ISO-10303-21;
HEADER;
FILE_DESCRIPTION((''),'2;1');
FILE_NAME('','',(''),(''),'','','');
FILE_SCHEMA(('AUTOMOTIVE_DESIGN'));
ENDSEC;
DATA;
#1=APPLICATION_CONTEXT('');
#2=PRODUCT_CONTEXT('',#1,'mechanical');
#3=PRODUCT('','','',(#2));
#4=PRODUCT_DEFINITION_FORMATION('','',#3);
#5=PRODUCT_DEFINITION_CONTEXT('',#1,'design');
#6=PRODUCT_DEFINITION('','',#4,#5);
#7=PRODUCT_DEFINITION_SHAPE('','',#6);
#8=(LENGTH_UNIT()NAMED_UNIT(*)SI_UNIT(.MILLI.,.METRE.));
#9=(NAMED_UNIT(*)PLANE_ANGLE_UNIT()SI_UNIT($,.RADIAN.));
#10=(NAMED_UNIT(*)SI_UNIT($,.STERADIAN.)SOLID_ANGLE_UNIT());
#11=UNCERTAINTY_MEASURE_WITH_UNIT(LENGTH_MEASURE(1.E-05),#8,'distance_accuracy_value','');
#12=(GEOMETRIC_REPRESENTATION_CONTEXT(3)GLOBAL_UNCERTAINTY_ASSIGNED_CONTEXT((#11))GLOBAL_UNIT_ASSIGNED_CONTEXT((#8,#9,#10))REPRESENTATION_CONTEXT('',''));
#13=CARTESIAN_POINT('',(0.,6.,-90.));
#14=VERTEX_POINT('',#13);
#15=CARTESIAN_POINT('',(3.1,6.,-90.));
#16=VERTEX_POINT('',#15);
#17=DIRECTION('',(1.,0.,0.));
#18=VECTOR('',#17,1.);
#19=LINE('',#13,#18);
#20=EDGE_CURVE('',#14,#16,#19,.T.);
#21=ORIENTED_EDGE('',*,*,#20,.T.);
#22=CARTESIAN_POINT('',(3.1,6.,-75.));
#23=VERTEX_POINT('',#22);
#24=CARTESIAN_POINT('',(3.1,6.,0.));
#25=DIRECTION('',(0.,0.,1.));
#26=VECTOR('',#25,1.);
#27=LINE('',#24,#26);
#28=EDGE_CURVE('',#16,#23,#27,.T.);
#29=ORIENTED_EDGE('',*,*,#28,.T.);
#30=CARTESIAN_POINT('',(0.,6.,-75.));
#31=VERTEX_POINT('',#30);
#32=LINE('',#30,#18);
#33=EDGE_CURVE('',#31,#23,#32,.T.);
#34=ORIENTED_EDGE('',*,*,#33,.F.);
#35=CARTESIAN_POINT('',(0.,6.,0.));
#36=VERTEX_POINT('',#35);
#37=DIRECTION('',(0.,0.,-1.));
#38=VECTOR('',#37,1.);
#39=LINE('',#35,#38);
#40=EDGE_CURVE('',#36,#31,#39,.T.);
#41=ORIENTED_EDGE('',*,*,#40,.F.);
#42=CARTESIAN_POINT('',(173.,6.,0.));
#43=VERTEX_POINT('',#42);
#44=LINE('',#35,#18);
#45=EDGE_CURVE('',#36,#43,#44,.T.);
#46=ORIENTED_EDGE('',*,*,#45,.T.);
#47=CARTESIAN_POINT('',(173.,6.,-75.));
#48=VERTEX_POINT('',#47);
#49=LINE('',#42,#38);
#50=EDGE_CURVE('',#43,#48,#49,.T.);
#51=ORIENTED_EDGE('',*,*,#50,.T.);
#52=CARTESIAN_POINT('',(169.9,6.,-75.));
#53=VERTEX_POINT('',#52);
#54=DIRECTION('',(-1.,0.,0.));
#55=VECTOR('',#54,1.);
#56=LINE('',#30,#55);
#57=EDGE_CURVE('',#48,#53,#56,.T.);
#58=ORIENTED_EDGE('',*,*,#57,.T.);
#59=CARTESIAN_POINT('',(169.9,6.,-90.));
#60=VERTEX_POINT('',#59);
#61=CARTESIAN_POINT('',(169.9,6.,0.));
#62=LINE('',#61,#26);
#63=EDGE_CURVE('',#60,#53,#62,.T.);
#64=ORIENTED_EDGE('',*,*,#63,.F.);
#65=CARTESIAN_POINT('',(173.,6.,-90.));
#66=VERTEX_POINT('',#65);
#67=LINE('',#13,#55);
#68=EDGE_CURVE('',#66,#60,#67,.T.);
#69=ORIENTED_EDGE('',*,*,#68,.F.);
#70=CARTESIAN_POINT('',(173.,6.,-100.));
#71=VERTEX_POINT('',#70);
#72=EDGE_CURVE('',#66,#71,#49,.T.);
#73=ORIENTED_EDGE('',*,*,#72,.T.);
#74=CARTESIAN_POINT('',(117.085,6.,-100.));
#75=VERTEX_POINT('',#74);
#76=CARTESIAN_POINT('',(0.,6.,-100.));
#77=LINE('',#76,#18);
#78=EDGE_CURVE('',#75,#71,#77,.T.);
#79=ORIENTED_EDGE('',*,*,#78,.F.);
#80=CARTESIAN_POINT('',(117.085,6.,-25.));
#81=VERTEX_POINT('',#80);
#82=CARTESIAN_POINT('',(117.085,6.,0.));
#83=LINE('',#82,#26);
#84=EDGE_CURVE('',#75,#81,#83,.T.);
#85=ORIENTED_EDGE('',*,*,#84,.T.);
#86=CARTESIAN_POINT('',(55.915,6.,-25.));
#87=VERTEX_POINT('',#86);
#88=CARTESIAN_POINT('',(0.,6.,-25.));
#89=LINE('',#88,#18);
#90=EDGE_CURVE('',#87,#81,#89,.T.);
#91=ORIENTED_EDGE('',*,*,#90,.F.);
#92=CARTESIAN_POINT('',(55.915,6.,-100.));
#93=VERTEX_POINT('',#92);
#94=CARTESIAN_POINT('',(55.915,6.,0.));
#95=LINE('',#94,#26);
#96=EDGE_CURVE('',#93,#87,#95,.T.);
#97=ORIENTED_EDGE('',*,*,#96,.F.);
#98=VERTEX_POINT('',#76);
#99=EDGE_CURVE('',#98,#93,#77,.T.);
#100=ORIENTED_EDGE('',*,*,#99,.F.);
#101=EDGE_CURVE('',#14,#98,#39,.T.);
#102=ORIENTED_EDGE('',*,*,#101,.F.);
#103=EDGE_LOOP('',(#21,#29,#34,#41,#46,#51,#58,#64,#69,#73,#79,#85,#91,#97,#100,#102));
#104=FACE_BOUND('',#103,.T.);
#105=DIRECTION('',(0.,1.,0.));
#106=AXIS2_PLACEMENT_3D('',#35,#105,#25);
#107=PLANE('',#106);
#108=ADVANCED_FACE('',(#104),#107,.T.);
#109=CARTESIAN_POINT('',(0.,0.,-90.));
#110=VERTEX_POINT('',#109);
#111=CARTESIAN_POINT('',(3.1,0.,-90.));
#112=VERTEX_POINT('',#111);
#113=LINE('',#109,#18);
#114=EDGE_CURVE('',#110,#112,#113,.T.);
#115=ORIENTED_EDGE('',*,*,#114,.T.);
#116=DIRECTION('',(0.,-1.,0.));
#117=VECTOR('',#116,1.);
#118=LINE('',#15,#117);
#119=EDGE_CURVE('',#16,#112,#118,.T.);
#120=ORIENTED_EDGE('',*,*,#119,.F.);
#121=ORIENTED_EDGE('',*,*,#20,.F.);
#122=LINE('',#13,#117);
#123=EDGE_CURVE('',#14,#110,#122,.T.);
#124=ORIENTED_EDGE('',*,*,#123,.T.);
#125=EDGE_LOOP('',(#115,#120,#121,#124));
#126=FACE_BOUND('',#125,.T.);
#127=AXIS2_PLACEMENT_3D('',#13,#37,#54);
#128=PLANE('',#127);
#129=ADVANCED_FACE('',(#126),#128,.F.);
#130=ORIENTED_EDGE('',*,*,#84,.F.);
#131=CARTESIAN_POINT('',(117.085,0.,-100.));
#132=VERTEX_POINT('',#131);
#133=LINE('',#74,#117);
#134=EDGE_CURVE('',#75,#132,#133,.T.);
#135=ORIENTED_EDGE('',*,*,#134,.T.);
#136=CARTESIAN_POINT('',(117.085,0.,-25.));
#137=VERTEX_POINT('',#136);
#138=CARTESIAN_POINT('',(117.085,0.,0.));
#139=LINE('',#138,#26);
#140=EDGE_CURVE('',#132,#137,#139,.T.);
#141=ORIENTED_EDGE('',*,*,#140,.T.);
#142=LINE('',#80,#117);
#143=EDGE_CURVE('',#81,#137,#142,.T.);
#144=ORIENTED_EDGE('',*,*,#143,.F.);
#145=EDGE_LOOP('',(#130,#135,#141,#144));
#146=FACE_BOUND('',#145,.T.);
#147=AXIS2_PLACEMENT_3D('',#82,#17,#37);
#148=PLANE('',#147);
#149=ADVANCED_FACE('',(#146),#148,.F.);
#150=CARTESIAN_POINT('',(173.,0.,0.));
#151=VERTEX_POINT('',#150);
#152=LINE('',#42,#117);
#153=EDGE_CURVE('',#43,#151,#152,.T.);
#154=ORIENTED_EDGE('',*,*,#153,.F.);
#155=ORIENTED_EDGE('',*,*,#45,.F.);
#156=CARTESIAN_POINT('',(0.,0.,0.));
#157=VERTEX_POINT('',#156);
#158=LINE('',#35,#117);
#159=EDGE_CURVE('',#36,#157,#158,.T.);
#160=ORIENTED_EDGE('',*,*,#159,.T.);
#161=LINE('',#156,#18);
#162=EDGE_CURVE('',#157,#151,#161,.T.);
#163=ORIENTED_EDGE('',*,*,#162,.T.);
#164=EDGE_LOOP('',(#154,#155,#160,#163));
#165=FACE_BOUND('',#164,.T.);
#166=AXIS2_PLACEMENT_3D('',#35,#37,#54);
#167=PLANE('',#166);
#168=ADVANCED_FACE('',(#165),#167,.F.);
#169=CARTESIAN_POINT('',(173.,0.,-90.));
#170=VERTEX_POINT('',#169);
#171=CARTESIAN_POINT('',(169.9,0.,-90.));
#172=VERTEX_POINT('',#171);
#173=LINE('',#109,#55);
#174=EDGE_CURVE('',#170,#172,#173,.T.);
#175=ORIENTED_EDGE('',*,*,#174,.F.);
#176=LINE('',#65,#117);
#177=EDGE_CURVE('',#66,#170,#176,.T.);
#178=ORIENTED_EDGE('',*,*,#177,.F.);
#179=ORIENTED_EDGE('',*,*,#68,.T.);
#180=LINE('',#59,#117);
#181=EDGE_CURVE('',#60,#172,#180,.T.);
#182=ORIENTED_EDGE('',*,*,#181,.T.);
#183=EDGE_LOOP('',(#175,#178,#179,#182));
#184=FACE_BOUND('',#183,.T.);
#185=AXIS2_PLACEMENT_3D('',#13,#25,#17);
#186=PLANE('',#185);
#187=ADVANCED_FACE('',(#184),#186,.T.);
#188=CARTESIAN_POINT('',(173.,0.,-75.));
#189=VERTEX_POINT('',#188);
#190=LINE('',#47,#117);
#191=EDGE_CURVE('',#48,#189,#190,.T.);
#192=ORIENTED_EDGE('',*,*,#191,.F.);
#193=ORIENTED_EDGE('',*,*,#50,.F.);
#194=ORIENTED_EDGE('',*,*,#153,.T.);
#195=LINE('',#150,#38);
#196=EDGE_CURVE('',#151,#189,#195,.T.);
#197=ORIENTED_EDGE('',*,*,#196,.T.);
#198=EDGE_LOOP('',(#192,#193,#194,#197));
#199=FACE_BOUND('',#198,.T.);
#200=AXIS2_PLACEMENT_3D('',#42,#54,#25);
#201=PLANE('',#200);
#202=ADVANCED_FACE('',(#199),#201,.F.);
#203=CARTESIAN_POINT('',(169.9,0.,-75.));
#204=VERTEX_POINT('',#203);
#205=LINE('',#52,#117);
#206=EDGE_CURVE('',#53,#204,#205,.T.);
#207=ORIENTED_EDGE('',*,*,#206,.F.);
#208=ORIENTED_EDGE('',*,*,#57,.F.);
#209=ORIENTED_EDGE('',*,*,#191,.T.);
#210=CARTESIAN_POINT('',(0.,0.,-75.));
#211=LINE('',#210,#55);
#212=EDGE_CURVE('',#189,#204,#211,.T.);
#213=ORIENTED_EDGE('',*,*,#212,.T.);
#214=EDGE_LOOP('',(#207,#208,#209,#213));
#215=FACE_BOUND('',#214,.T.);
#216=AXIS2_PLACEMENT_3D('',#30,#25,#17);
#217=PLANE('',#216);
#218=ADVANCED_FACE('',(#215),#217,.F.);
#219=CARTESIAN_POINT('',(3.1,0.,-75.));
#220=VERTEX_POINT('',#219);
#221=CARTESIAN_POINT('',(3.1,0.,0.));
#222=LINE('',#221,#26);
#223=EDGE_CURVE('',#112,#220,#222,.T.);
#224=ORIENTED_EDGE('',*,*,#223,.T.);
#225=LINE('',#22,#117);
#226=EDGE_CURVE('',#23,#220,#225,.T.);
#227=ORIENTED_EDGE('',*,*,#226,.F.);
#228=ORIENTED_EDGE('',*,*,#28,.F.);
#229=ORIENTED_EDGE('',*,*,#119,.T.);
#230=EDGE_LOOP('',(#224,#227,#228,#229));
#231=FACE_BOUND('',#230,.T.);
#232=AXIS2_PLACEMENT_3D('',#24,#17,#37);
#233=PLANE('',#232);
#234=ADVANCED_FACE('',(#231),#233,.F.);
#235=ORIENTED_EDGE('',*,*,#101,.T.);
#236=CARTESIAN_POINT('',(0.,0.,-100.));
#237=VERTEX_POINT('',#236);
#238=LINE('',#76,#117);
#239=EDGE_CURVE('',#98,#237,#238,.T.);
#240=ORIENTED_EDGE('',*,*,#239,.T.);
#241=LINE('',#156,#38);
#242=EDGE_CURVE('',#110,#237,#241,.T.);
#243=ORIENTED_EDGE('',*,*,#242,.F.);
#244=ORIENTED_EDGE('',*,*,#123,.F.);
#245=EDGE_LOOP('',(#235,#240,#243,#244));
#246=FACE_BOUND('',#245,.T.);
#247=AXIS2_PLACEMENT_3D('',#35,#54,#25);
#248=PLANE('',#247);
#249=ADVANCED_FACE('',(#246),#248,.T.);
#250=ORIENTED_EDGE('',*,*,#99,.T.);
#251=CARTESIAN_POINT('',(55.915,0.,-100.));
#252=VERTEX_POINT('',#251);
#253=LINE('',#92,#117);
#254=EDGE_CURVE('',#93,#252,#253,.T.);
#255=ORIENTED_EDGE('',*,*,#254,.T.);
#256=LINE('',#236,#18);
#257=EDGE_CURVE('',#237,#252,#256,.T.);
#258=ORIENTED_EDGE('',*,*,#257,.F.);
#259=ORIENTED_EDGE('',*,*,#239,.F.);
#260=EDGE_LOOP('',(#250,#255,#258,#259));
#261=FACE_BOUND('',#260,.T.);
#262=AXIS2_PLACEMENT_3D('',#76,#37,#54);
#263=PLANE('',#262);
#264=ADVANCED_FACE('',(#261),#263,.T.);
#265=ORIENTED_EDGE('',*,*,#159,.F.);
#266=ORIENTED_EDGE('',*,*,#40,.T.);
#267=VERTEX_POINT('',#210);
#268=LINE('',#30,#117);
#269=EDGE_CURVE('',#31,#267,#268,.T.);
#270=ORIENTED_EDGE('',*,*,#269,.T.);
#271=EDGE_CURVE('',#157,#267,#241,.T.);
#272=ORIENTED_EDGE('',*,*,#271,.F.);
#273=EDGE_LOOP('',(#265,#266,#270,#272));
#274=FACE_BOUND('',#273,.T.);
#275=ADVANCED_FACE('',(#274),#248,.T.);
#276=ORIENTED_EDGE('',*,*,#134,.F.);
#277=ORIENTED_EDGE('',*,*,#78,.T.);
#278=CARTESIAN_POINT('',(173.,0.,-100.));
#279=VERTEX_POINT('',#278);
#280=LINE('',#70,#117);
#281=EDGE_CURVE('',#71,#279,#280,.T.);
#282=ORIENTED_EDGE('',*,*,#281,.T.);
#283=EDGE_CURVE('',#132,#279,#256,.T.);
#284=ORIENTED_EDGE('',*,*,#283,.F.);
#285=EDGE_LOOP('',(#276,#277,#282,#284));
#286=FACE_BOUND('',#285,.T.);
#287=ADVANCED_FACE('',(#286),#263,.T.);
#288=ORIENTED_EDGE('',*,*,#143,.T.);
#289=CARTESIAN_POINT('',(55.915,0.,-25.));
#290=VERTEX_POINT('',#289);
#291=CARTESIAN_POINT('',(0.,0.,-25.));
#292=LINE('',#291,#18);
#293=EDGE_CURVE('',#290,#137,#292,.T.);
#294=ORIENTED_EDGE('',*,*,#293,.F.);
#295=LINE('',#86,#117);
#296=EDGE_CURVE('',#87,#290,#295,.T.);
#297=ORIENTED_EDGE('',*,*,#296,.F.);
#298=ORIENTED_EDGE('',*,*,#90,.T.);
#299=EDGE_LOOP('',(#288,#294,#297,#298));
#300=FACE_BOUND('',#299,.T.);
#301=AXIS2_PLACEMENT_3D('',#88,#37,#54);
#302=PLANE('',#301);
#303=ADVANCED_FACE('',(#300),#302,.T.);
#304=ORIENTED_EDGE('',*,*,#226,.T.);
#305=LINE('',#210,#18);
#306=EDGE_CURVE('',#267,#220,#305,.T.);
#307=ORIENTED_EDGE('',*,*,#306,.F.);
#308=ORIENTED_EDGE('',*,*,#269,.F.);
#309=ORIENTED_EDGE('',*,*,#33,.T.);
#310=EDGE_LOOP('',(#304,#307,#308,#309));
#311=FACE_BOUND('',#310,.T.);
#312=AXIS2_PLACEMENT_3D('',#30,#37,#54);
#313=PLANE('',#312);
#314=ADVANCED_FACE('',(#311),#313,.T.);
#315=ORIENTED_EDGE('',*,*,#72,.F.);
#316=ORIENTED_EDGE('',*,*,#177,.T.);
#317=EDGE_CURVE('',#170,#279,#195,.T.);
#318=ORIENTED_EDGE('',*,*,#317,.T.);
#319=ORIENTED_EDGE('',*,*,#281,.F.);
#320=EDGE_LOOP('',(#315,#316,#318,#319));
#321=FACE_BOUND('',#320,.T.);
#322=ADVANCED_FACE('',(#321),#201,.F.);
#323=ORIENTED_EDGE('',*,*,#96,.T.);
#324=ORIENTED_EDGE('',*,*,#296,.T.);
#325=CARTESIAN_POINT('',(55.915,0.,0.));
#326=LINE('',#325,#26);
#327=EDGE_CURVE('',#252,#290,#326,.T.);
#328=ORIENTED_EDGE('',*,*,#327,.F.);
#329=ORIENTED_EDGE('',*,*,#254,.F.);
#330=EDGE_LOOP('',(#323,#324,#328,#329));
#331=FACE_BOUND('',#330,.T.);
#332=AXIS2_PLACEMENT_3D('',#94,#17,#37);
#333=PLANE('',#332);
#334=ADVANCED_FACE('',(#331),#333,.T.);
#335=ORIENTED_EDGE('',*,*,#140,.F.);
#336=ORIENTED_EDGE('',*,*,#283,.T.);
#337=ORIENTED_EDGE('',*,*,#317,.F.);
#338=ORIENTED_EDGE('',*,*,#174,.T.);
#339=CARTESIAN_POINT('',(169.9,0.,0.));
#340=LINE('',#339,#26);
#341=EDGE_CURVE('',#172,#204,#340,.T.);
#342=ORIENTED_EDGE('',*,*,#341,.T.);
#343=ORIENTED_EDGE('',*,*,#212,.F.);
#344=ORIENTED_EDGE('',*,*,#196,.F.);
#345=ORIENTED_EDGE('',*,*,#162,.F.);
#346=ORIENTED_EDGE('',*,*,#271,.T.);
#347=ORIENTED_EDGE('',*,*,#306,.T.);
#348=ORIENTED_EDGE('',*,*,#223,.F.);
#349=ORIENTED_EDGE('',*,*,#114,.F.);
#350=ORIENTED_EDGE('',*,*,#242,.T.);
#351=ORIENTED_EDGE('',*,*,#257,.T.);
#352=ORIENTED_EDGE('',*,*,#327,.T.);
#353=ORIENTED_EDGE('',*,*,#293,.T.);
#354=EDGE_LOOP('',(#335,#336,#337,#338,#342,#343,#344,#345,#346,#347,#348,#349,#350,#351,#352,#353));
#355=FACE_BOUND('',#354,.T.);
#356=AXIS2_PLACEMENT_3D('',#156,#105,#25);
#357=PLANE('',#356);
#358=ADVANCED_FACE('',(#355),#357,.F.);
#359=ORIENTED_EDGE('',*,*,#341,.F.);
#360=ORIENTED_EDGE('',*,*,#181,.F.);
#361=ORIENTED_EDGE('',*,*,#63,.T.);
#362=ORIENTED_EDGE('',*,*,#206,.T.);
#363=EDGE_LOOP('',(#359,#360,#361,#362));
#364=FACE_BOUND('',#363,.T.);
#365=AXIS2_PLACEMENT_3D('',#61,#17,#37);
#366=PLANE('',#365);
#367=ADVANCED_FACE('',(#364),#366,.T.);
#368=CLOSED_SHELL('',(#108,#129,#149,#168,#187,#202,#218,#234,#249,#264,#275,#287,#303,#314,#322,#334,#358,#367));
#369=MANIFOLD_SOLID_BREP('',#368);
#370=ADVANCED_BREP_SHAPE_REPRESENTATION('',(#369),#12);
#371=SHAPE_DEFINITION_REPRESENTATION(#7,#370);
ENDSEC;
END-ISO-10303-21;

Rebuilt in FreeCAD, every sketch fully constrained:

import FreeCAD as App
import Part
import Sketcher

V = App.Vector
Q = App.Units.Quantity

doc = App.newDocument("Part")
body = doc.addObject("PartDesign::Body", "Body")

# Sketch on XZ plane
sketch1 = body.newObject("Sketcher::SketchObject", "Sketch")
sketch1.AttachmentSupport = (doc.getObject("XZ_Plane"), [""])
sketch1.MapMode = "FlatFace"
sketch1.addGeometry(Part.LineSegment(V(0, 0, 0), V(173, 0, 0)), False)
sketch1.addGeometry(Part.LineSegment(V(173, 0, 0), V(173, -75, 0)), False)
sketch1.addGeometry(Part.LineSegment(V(173, -75, 0), V(169.9, -75, 0)), False)
sketch1.addGeometry(Part.LineSegment(V(169.9, -75, 0), V(169.9, -90, 0)), False)
sketch1.addGeometry(Part.LineSegment(V(169.9, -90, 0), V(173, -90, 0)), False)
sketch1.addGeometry(Part.LineSegment(V(173, -90, 0), V(173, -100, 0)), False)
sketch1.addGeometry(Part.LineSegment(V(173, -100, 0), V(117.1, -100, 0)), False)
sketch1.addGeometry(Part.LineSegment(V(117.1, -100, 0), V(117.1, -25, 0)), False)
sketch1.addGeometry(Part.LineSegment(V(117.1, -25, 0), V(55.9, -25, 0)), False)
sketch1.addGeometry(Part.LineSegment(V(55.9, -25, 0), V(55.9, -100, 0)), False)
sketch1.addGeometry(Part.LineSegment(V(55.9, -100, 0), V(0, -100, 0)), False)
sketch1.addGeometry(Part.LineSegment(V(0, -100, 0), V(0, -90, 0)), False)
sketch1.addGeometry(Part.LineSegment(V(0, -90, 0), V(3.1, -90, 0)), False)
sketch1.addGeometry(Part.LineSegment(V(3.1, -90, 0), V(3.1, -75, 0)), False)
sketch1.addGeometry(Part.LineSegment(V(3.1, -75, 0), V(0, -75, 0)), False)
sketch1.addGeometry(Part.LineSegment(V(0, -75, 0), V(0, 0, 0)), False)
sketch1.addConstraint(Sketcher.Constraint("Coincident", 0, 2, 1, 1))
sketch1.addConstraint(Sketcher.Constraint("Coincident", 1, 2, 2, 1))
sketch1.addConstraint(Sketcher.Constraint("Coincident", 2, 2, 3, 1))
sketch1.addConstraint(Sketcher.Constraint("Coincident", 3, 2, 4, 1))
sketch1.addConstraint(Sketcher.Constraint("Coincident", 4, 2, 5, 1))
sketch1.addConstraint(Sketcher.Constraint("Coincident", 5, 2, 6, 1))
sketch1.addConstraint(Sketcher.Constraint("Coincident", 6, 2, 7, 1))
sketch1.addConstraint(Sketcher.Constraint("Coincident", 7, 2, 8, 1))
sketch1.addConstraint(Sketcher.Constraint("Coincident", 8, 2, 9, 1))
sketch1.addConstraint(Sketcher.Constraint("Coincident", 9, 2, 10, 1))
sketch1.addConstraint(Sketcher.Constraint("Coincident", 10, 2, 11, 1))
sketch1.addConstraint(Sketcher.Constraint("Coincident", 11, 2, 12, 1))
sketch1.addConstraint(Sketcher.Constraint("Coincident", 12, 2, 13, 1))
sketch1.addConstraint(Sketcher.Constraint("Coincident", 13, 2, 14, 1))
sketch1.addConstraint(Sketcher.Constraint("Coincident", 14, 2, 15, 1))
sketch1.addConstraint(Sketcher.Constraint("Coincident", 15, 2, 0, 1))
sketch1.addConstraint(Sketcher.Constraint("Horizontal", 0))
sketch1.addConstraint(Sketcher.Constraint("Vertical", 1))
sketch1.addConstraint(Sketcher.Constraint("Horizontal", 2))
sketch1.addConstraint(Sketcher.Constraint("Vertical", 3))
sketch1.addConstraint(Sketcher.Constraint("Horizontal", 4))
sketch1.addConstraint(Sketcher.Constraint("Vertical", 5))
sketch1.addConstraint(Sketcher.Constraint("Horizontal", 6))
sketch1.addConstraint(Sketcher.Constraint("Vertical", 7))
sketch1.addConstraint(Sketcher.Constraint("Horizontal", 8))
sketch1.addConstraint(Sketcher.Constraint("Vertical", 9))
sketch1.addConstraint(Sketcher.Constraint("Horizontal", 10))
sketch1.addConstraint(Sketcher.Constraint("Vertical", 11))
sketch1.addConstraint(Sketcher.Constraint("Horizontal", 12))
sketch1.addConstraint(Sketcher.Constraint("Vertical", 13))
sketch1.addConstraint(Sketcher.Constraint("Horizontal", 14))
sketch1.addConstraint(Sketcher.Constraint("Vertical", 15))
sketch1.addConstraint(Sketcher.Constraint("Coincident", 15, 2, -1, 1))
sketch1.addConstraint(Sketcher.Constraint("PointOnObject", 10, 2, -2))
sketch1.addConstraint(Sketcher.Constraint("Horizontal", 6, 2, 9, 2))
sketch1.addConstraint(Sketcher.Constraint("Horizontal", 4, 2, 11, 2))
sketch1.addConstraint(Sketcher.Constraint("Horizontal", 2, 2, 13, 2))
sketch1.addConstraint(Sketcher.Constraint("Vertical", 1, 2, 4, 2))
sketch1.addConstraint(Sketcher.Constraint("Equal", 6, 10))
sketch1.addConstraint(Sketcher.Constraint("Equal", 4, 12))
sketch1.addConstraint(Sketcher.Constraint("Equal", 1, 7))
sketch1.addConstraint(Sketcher.Constraint("DistanceX", 0, 1, 0, 2, Q("173 mm")))
sketch1.addConstraint(Sketcher.Constraint("DistanceY", 1, 2, 1, 1, Q("75 mm")))
sketch1.addConstraint(Sketcher.Constraint("DistanceY", 3, 2, 3, 1, Q("15 mm")))
sketch1.addConstraint(Sketcher.Constraint("DistanceY", 5, 2, 5, 1, Q("10 mm")))
sketch1.addConstraint(Sketcher.Constraint("DistanceX", 2, 2, 2, 1, Q("3.1 mm")))
sketch1.addConstraint(Sketcher.Constraint("DistanceX", 8, 2, 8, 1, Q("61.17 mm")))
pad1 = body.newObject("PartDesign::Pad", "Pad")
pad1.Profile = sketch1
pad1.Length = 6
pad1.Reversed = True

doc.recompute()
